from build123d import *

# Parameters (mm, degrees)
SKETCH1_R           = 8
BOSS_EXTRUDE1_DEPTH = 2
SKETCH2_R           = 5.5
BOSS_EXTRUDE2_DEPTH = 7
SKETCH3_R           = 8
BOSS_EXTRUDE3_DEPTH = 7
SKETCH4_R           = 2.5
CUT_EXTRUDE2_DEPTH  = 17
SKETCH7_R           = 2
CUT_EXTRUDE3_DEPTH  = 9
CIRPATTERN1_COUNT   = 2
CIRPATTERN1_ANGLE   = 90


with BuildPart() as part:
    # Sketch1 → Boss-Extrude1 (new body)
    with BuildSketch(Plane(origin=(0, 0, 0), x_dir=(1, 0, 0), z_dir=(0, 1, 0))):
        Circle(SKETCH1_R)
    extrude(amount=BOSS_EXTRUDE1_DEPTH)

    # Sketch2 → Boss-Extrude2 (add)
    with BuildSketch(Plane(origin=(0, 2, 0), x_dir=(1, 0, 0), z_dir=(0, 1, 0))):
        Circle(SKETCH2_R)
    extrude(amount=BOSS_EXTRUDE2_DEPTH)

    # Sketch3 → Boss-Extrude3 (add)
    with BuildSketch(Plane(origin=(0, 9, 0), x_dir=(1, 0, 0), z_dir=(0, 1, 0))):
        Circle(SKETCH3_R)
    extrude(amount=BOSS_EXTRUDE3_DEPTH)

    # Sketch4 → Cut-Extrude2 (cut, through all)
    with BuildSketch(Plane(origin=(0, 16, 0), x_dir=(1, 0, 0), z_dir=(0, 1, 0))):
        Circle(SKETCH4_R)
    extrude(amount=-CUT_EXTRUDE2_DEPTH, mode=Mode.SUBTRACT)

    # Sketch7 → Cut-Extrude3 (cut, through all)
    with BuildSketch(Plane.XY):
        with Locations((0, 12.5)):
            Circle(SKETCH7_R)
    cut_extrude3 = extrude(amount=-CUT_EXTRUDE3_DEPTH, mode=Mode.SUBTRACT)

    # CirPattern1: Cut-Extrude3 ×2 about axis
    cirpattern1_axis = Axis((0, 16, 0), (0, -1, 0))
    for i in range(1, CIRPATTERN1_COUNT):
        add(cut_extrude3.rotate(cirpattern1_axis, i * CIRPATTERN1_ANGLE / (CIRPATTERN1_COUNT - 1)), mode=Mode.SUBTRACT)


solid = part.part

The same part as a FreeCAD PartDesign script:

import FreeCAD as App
import Part
import Sketcher

V = App.Vector
Q = App.Units.Quantity

doc = App.newDocument("Part")
body = doc.addObject("PartDesign::Body", "Body")

sketch1 = body.newObject("Sketcher::SketchObject", "Sketch")
sketch1.AttachmentSupport = (doc.getObject("XZ_Plane"), [""])
sketch1.MapMode = "FlatFace"
sketch1.addGeometry(Part.Circle(V(0, 0, 0), V(0, 0, 1), 8), False)
sketch1.addConstraint([
    Sketcher.Constraint("Coincident", 0, 3, -1, 1),
    Sketcher.Constraint("Diameter", 0, Q("16 mm")),
])
pad1 = body.newObject("PartDesign::Pad", "Pad")
pad1.Profile = sketch1
pad1.Length = 2
pad1.Reversed = True

sketch2 = body.newObject("Sketcher::SketchObject", "Sketch001")
sketch2.AttachmentSupport = (doc.getObject("XZ_Plane"), [""])
sketch2.MapMode = "FlatFace"
sketch2.AttachmentOffset = App.Placement(V(0, 0, -2), App.Rotation())
sketch2.addGeometry(Part.Circle(V(0, 0, 0), V(0, 0, 1), 5.5), False)
sketch2.addConstraint([
    Sketcher.Constraint("Coincident", 0, 3, -1, 1),
    Sketcher.Constraint("Diameter", 0, Q("11 mm")),
])
pad2 = body.newObject("PartDesign::Pad", "Pad001")
pad2.Profile = sketch2
pad2.Length = 7
pad2.Reversed = True

sketch3 = body.newObject("Sketcher::SketchObject", "Sketch002")
sketch3.AttachmentSupport = (doc.getObject("XZ_Plane"), [""])
sketch3.MapMode = "FlatFace"
sketch3.AttachmentOffset = App.Placement(V(0, 0, -9), App.Rotation())
sketch3.addGeometry(Part.Circle(V(0, 0, 0), V(0, 0, 1), 8), False)
sketch3.addConstraint([
    Sketcher.Constraint("Coincident", 0, 3, -1, 1),
    Sketcher.Constraint("Diameter", 0, Q("16 mm")),
])
pad3 = body.newObject("PartDesign::Pad", "Pad002")
pad3.Profile = sketch3
pad3.Length = 7
pad3.Reversed = True

sketch4 = body.newObject("Sketcher::SketchObject", "Sketch003")
sketch4.AttachmentSupport = (doc.getObject("XZ_Plane"), [""])
sketch4.MapMode = "FlatFace"
sketch4.AttachmentOffset = App.Placement(V(0, 0, -16), App.Rotation())
sketch4.addGeometry(Part.Circle(V(0, 0, 0), V(0, 0, 1), 2.5), False)
sketch4.addConstraint([
    Sketcher.Constraint("Coincident", 0, 3, -1, 1),
    Sketcher.Constraint("Diameter", 0, Q("5 mm")),
])
pocket1 = body.newObject("PartDesign::Pocket", "Pocket")
pocket1.Profile = sketch4
pocket1.Type = "ThroughAll"
pocket1.Reversed = True

sketch5 = body.newObject("Sketcher::SketchObject", "Sketch004")
sketch5.AttachmentSupport = (doc.getObject("XY_Plane"), [""])
sketch5.MapMode = "FlatFace"
sketch5.addGeometry(Part.Circle(V(0, 12.5, 0), V(0, 0, 1), 2), False)
sketch5.addConstraint([
    Sketcher.Constraint("PointOnObject", 0, 3, -2),
    Sketcher.Constraint("Diameter", 0, Q("4 mm")),
    Sketcher.Constraint("DistanceY", -1, 1, 0, 3, Q("12.5 mm")),
])
pocket2 = body.newObject("PartDesign::Pocket", "Pocket001")
pocket2.Profile = sketch5
pocket2.Type = "ThroughAll"
doc.recompute()

polarpattern = body.newObject("PartDesign::PolarPattern", "PolarPattern")
polarpattern.Originals = [pocket2]
polarpattern.Axis = (doc.getObject("Y_Axis"), [""])
polarpattern.Angle = 90
polarpattern.Occurrences = 2
polarpattern.Reversed = True
body.Tip = polarpattern

doc.recompute()
